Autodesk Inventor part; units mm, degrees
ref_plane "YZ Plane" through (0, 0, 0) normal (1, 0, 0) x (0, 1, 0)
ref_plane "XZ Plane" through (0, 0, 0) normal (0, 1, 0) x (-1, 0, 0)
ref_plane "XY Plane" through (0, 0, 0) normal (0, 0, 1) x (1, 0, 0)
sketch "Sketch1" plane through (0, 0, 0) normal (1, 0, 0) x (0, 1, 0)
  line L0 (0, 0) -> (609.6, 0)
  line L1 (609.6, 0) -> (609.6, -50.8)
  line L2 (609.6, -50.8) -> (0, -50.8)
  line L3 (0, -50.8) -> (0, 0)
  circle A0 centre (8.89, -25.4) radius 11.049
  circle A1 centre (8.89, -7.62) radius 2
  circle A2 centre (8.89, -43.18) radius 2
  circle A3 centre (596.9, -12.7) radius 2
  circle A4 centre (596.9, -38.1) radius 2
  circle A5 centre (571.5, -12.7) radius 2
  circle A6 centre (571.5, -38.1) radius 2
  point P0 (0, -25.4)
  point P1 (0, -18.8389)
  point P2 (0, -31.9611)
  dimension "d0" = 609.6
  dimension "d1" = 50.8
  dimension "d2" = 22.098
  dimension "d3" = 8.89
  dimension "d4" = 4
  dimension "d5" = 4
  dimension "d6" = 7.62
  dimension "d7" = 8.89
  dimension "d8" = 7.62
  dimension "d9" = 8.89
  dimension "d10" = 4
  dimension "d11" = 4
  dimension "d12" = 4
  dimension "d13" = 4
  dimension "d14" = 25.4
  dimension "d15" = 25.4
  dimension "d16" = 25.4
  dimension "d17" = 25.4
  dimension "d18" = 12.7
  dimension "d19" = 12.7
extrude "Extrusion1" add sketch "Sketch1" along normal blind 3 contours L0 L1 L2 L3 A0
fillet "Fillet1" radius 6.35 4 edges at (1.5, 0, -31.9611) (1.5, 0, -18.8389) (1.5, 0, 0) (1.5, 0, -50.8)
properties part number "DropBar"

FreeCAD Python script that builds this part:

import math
import FreeCAD as App
import Part
import Sketcher

V = App.Vector
Q = App.Units.Quantity


def edges_at(feature, points):
    """Names of the edges that pass closest to the given points."""
    edges = feature.Shape.Edges
    near = lambda p: min(range(len(edges)), key=lambda i: edges[i].distToShape(Part.Vertex(*p))[0])
    return sorted({f"Edge{near(p) + 1}" for p in points})

doc = App.newDocument("Part")
body = doc.addObject("PartDesign::Body", "Body")

# Sketch on YZ plane
sketch1 = body.newObject("Sketcher::SketchObject", "Sketch")
sketch1.AttachmentSupport = (doc.getObject("YZ_Plane"), [""])
sketch1.MapMode = "FlatFace"
sketch1.addGeometry(Part.LineSegment(V(609.6, 0, 0), V(0, 0, 0)), False)
sketch1.addGeometry(Part.LineSegment(V(0, 0, 0), V(0, -18.83888, 0)), False)
sketch1.addGeometry(Part.ArcOfCircle(Part.Circle(V(8.89, -25.4, 0), V(0, 0, 1), 11.049), math.radians(-143.571421), math.radians(143.571421)), False)
sketch1.addGeometry(Part.LineSegment(V(0, -31.96112, 0), V(0, -50.8, 0)), False)
sketch1.addGeometry(Part.LineSegment(V(0, -50.8, 0), V(609.6, -50.8, 0)), False)
sketch1.addGeometry(Part.LineSegment(V(609.6, -50.8, 0), V(609.6, 0, 0)), False)
sketch1.addGeometry(Part.Circle(V(8.89, -43.18, 0), V(0, 0, 1), 2), False)
sketch1.addGeometry(Part.Circle(V(571.5, -38.1, 0), V(0, 0, 1), 2), False)
sketch1.addGeometry(Part.Circle(V(596.9, -38.1, 0), V(0, 0, 1), 2), False)
sketch1.addGeometry(Part.Circle(V(8.89, -7.62, 0), V(0, 0, 1), 2), False)
sketch1.addGeometry(Part.Circle(V(571.5, -12.7, 0), V(0, 0, 1), 2), False)
sketch1.addGeometry(Part.Circle(V(596.9, -12.7, 0), V(0, 0, 1), 2), False)
sketch1.addConstraint(Sketcher.Constraint("Coincident", 0, 2, 1, 1))
sketch1.addConstraint(Sketcher.Constraint("Coincident", 1, 2, 2, 2))
sketch1.addConstraint(Sketcher.Constraint("Coincident", 2, 1, 3, 1))
sketch1.addConstraint(Sketcher.Constraint("Coincident", 3, 2, 4, 1))
sketch1.addConstraint(Sketcher.Constraint("Coincident", 4, 2, 5, 1))
sketch1.addConstraint(Sketcher.Constraint("Coincident", 5, 2, 0, 1))
sketch1.addConstraint(Sketcher.Constraint("Horizontal", 0))
sketch1.addConstraint(Sketcher.Constraint("Vertical", 1))
sketch1.addConstraint(Sketcher.Constraint("Vertical", 3))
sketch1.addConstraint(Sketcher.Constraint("Horizontal", 4))
sketch1.addConstraint(Sketcher.Constraint("Vertical", 5))
sketch1.addConstraint(Sketcher.Constraint("Coincident", 0, 2, -1, 1))
sketch1.addConstraint(Sketcher.Constraint("Equal", 6, 7))
sketch1.addConstraint(Sketcher.Constraint("Equal", 7, 8))
sketch1.addConstraint(Sketcher.Constraint("Equal", 8, 9))
sketch1.addConstraint(Sketcher.Constraint("Equal", 9, 10))
sketch1.addConstraint(Sketcher.Constraint("Equal", 10, 11))
sketch1.addConstraint(Sketcher.Constraint("PointOnObject", 2, 1, -2))
sketch1.addConstraint(Sketcher.Constraint("Horizontal", 7, 3, 8, 3))
sketch1.addConstraint(Sketcher.Constraint("Horizontal", 10, 3, 11, 3))
sketch1.addConstraint(Sketcher.Constraint("Vertical", 2, 3, 6, 3))
sketch1.addConstraint(Sketcher.Constraint("Vertical", 6, 3, 9, 3))
sketch1.addConstraint(Sketcher.Constraint("Vertical", 7, 3, 10, 3))
sketch1.addConstraint(Sketcher.Constraint("Vertical", 8, 3, 11, 3))
sketch1.addConstraint(Sketcher.Constraint("Equal", 1, 3))
sketch1.addConstraint(Sketcher.Constraint("DistanceX", 0, 2, 0, 1, Q("24 in")))
sketch1.addConstraint(Sketcher.Constraint("DistanceY", 5, 1, 5, 2, Q("2 in")))
sketch1.addConstraint(Sketcher.Constraint("Radius", 2, Q("0.435 in")))
sketch1.addConstraint(Sketcher.Constraint("DistanceX", 7, 3, 8, 3, Q("1 in")))
sketch1.addConstraint(Sketcher.Constraint("DistanceY", 7, 3, 10, 3, Q("1 in")))
sketch1.addConstraint(Sketcher.Constraint("DistanceY", 9, 3, -1, 1, Q("0.3 in")))
sketch1.addConstraint(Sketcher.Constraint("DistanceY", 10, 3, -1, 1, Q("0.5 in")))
sketch1.addConstraint(Sketcher.Constraint("DistanceY", 3, 2, 6, 3, Q("0.3 in")))
sketch1.addConstraint(Sketcher.Constraint("DistanceX", 8, 3, 4, 2, Q("0.5 in")))
sketch1.addConstraint(Sketcher.Constraint("Diameter", 6, 4.0))
sketch1.addConstraint(Sketcher.Constraint("DistanceX", -1, 1, 2, 3, Q("0.35 in")))
pad1 = body.newObject("PartDesign::Pad", "Pad")
pad1.Profile = sketch1
pad1.Length = Q("0.1181102 in")
doc.recompute()

fillet = body.newObject("PartDesign::Fillet", "Fillet")
fillet.Base = (pad1, edges_at(pad1, [
    (1.5, 0, -31.961),
    (1.5, 0, -18.839),
    (1.5, 0, 0),
    (1.5, 0, -50.8),
]))
fillet.Radius = Q("0.25 in")

doc.recompute()
